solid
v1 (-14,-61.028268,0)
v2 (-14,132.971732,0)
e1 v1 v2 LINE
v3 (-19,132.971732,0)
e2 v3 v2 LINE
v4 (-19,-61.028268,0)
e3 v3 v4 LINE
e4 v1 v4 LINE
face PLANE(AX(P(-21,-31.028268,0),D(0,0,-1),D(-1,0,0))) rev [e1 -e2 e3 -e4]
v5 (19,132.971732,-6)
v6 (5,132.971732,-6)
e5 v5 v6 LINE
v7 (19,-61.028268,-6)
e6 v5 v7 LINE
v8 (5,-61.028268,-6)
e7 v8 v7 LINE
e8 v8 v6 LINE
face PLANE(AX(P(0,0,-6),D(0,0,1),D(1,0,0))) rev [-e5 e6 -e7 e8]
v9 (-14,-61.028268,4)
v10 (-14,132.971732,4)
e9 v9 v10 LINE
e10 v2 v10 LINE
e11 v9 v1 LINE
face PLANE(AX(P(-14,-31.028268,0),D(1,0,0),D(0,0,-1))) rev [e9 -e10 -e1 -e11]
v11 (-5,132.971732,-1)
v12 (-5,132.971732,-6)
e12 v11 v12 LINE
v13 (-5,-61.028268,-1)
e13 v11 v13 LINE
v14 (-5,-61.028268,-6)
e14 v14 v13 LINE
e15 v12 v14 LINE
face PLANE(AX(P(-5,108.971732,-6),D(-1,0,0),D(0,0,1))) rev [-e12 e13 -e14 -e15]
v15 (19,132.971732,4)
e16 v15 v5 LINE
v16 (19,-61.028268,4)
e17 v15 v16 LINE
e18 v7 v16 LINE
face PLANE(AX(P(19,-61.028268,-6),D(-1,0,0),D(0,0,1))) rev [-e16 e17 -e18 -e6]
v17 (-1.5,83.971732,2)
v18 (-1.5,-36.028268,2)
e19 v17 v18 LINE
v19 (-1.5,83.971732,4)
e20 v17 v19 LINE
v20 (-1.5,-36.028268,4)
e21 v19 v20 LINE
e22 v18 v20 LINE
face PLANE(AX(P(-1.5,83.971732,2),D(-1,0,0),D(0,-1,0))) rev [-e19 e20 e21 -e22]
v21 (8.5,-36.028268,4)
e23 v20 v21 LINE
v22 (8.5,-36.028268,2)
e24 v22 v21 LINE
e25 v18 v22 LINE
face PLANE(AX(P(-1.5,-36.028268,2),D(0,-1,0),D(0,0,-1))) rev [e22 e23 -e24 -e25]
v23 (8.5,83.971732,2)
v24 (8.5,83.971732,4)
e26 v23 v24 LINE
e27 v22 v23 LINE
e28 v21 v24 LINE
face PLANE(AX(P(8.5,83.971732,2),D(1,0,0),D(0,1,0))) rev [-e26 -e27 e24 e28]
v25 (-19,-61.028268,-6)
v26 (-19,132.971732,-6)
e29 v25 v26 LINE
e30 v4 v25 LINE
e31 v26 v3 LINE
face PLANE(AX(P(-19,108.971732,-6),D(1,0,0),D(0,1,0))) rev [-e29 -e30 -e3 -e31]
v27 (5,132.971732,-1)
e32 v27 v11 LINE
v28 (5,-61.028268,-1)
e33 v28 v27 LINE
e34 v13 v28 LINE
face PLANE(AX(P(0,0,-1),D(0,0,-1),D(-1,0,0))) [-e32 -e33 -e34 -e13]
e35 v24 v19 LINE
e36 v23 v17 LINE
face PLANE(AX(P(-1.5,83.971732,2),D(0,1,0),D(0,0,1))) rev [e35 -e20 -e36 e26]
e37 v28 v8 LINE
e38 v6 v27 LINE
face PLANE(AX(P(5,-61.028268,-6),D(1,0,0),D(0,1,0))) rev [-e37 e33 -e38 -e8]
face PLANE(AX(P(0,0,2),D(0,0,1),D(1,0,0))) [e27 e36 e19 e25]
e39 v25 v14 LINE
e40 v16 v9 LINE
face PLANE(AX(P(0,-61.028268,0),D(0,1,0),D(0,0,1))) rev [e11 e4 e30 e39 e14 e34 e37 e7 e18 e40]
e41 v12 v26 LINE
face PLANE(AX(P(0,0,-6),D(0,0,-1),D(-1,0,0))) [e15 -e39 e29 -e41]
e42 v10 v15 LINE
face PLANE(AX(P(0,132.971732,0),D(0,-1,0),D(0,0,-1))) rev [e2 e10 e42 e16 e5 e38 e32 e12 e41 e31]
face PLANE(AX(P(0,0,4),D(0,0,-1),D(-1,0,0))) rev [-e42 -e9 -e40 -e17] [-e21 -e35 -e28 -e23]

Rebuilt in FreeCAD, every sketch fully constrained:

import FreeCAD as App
import Part
import Sketcher


def add_polygon(sketch, points):
    """Adds a closed chain of lines whose ends are joined by coincident constraints."""
    first, n = sketch.GeometryCount, len(points)
    for a, b in zip(points, points[1:] + points[:1]):
        sketch.addGeometry(Part.LineSegment(App.Vector(*a, 0), App.Vector(*b, 0)), False)
    for i in range(n):
        sketch.addConstraint(Sketcher.Constraint("Coincident", first + i, 2, first + (i + 1) % n, 1))

doc = App.newDocument("Part")
body = doc.addObject("PartDesign::Body", "Body")

# Sketch on XY plane
sketch1 = body.newObject("Sketcher::SketchObject", "Sketch")
sketch1.AttachmentSupport = (doc.getObject("XY_Plane"), [""])
sketch1.MapMode = "FlatFace"
add_polygon(sketch1, [(-14, 88.971732), (-14, -11.028268), (0, -11.028268), (0, 88.971732)])  # lines 0-3
sketch1.addConstraint([
    Sketcher.Constraint("Vertical", 0),
    Sketcher.Constraint("Horizontal", 1),
    Sketcher.Constraint("Vertical", 2),
    Sketcher.Constraint("Horizontal", 3),
    Sketcher.Constraint("PointOnObject", 1, 2, -2),
    Sketcher.Constraint("DistanceX", 1, 1, 1, 2, 14.0),
    Sketcher.Constraint("DistanceY", 0, 2, 0, 1, 100.0),
    Sketcher.Constraint("DistanceY", 0, 2, -1, 1, 11.028268),
])
pad1 = body.newObject("PartDesign::Pad", "Pad")
pad1.Profile = sketch1
pad1.Length = 2

# Sketch on XY plane
sketch2 = body.newObject("Sketcher::SketchObject", "Sketch001")
sketch2.AttachmentSupport = (doc.getObject("XY_Plane"), [""])
sketch2.MapMode = "FlatFace"
sketch2.AttachmentOffset = App.Placement(App.Vector(0, 0, 2), App.Rotation())
add_polygon(sketch2, [(-14, 88.971732), (-14, -11.028268), (-12, -11.028268), (-12, 88.971732)])  # lines 0-3
add_polygon(sketch2, [(-2, 88.971732), (-2, -11.028268), (0, -11.028268), (0, 88.971732)])  # lines 4-7
sketch2.addConstraint([
    Sketcher.Constraint("Vertical", 0),
    Sketcher.Constraint("Horizontal", 1),
    Sketcher.Constraint("Vertical", 2),
    Sketcher.Constraint("Horizontal", 3),
    Sketcher.Constraint("Vertical", 4),
    Sketcher.Constraint("Horizontal", 5),
    Sketcher.Constraint("Vertical", 6),
    Sketcher.Constraint("Horizontal", 7),
    Sketcher.Constraint("PointOnObject", 5, 2, -2),
    Sketcher.Constraint("Horizontal", 1, 2, 4, 2),
    Sketcher.Constraint("Horizontal", 3, 2, 6, 2),
    Sketcher.Constraint("Equal", 3, 5),
    Sketcher.Constraint("DistanceX", 1, 1, 1, 2, 2.0),
    Sketcher.Constraint("DistanceY", 0, 2, 0, 1, 100.0),
    Sketcher.Constraint("DistanceX", 0, 2, -1, 1, 14.0),
    Sketcher.Constraint("DistanceY", 0, 2, -1, 1, 11.028268),
])
pad2 = body.newObject("PartDesign::Pad", "Pad001")
pad2.Profile = sketch2
pad2.Length = 4

# Sketch on YZ plane
sketch3 = body.newObject("Sketcher::SketchObject", "Sketch002")
sketch3.AttachmentSupport = (doc.getObject("YZ_Plane"), [""])
sketch3.MapMode = "FlatFace"
add_polygon(sketch3, [(88.971732, 2), (-11.028268, 2), (-11.028268, 0), (88.971732, 0)])  # lines 0-3
sketch3.addConstraint([
    Sketcher.Constraint("Horizontal", 0),
    Sketcher.Constraint("Vertical", 1),
    Sketcher.Constraint("Horizontal", 2),
    Sketcher.Constraint("Vertical", 3),
    Sketcher.Constraint("PointOnObject", 1, 2, -1),
    Sketcher.Constraint("DistanceX", 0, 2, 0, 1, 100.0),
    Sketcher.Constraint("DistanceY", 1, 2, 1, 1, 2.0),
    Sketcher.Constraint("DistanceX", 0, 2, -1, 1, 11.028268),
])
pad3 = body.newObject("PartDesign::Pad", "Pad002")
pad3.Profile = sketch3
pad3.Length = 2

# Sketch on YZ plane
sketch4 = body.newObject("Sketcher::SketchObject", "Sketch003")
sketch4.AttachmentSupport = (doc.getObject("YZ_Plane"), [""])
sketch4.MapMode = "FlatFace"
sketch4.AttachmentOffset = App.Placement(App.Vector(0, 0, -14), App.Rotation())
add_polygon(sketch4, [(88.971732, 0), (-11.028268, 0), (-11.028268, 2), (88.971732, 2)])  # lines 0-3
sketch4.addConstraint([
    Sketcher.Constraint("Horizontal", 0),
    Sketcher.Constraint("Vertical", 1),
    Sketcher.Constraint("Horizontal", 2),
    Sketcher.Constraint("Vertical", 3),
    Sketcher.Constraint("PointOnObject", 0, 2, -1),
    Sketcher.Constraint("DistanceX", 0, 2, 0, 1, 100.0),
    Sketcher.Constraint("DistanceY", 1, 1, 1, 2, 2.0),
    Sketcher.Constraint("DistanceX", 0, 2, -1, 1, 11.028268),
])
pad4 = body.newObject("PartDesign::Pad", "Pad003")
pad4.Profile = sketch4
pad4.Length = 2
pad4.Reversed = True

# Sketch on XY plane
sketch5 = body.newObject("Sketcher::SketchObject", "Sketch004")
sketch5.AttachmentSupport = (doc.getObject("XY_Plane"), [""])
sketch5.MapMode = "FlatFace"
add_polygon(sketch5, [(2, 88.971732), (2, -11.028268), (-16, -11.028268), (-16, 88.971732)])  # lines 0-3
sketch5.addConstraint([
    Sketcher.Constraint("Vertical", 0),
    Sketcher.Constraint("Horizontal", 1),
    Sketcher.Constraint("Vertical", 2),
    Sketcher.Constraint("Horizontal", 3),
    Sketcher.Constraint("DistanceX", 1, 2, 1, 1, 18.0),
    Sketcher.Constraint("DistanceY", 0, 2, 0, 1, 100.0),
    Sketcher.Constraint("DistanceX", -1, 1, 0, 2, 2.0),
    Sketcher.Constraint("DistanceY", 0, 2, -1, 1, 11.028268),
])
pad5 = body.newObject("PartDesign::Pad", "Pad004")
pad5.Profile = sketch5
pad5.Length = 1
pad5.Reversed = True

# Sketch on XY plane
sketch6 = body.newObject("Sketcher::SketchObject", "Sketch005")
sketch6.AttachmentSupport = (doc.getObject("XY_Plane"), [""])
sketch6.MapMode = "FlatFace"
sketch6.AttachmentOffset = App.Placement(App.Vector(0, 0, -1), App.Rotation())
add_polygon(sketch6, [(-5.5, 88.971732), (-5.5, -11.028268), (-8.5, -11.028268), (-8.5, 88.971732)])  # lines 0-3
sketch6.addConstraint([
    Sketcher.Constraint("Vertical", 0),
    Sketcher.Constraint("Horizontal", 1),
    Sketcher.Constraint("Vertical", 2),
    Sketcher.Constraint("Horizontal", 3),
    Sketcher.Constraint("DistanceX", 1, 2, 1, 1, 3.0),
    Sketcher.Constraint("DistanceY", 0, 2, 0, 1, 100.0),
    Sketcher.Constraint("DistanceX", 0, 2, -1, 1, 5.5),
    Sketcher.Constraint("DistanceY", 0, 2, -1, 1, 11.028268),
])
pocket1 = body.newObject("PartDesign::Pocket", "Pocket")
pocket1.Profile = sketch6
pocket1.Length = 1
pocket1.Reversed = True

# Sketch on XZ plane
sketch7 = body.newObject("Sketcher::SketchObject", "Sketch006")
sketch7.AttachmentSupport = (doc.getObject("XZ_Plane"), [""])
sketch7.MapMode = "FlatFace"
sketch7.AttachmentOffset = App.Placement(App.Vector(0, 0, -88.971732), App.Rotation())
add_polygon(sketch7, [(2, -1), (-5.5, -1), (-5.5, 0), (-8.5, 0), (-8.5, -1), (-16, -1), (-16, 2), (-14, 2), (-14, 6), (-12, 6), (-12, 2), (-2, 2), (-2, 6), (0, 6), (0, 2), (2, 2)])  # lines 0-15
sketch7.addConstraint([
    Sketcher.Constraint("Horizontal", 0),
    Sketcher.Constraint("Vertical", 1),
    Sketcher.Constraint("Horizontal", 2),
    Sketcher.Constraint("Vertical", 3),
    Sketcher.Constraint("Horizontal", 4),
    Sketcher.Constraint("Vertical", 5),
    Sketcher.Constraint("Horizontal", 6),
    Sketcher.Constraint("Vertical", 7),
    Sketcher.Constraint("Horizontal", 8),
    Sketcher.Constraint("Vertical", 9),
    Sketcher.Constraint("Horizontal", 10),
    Sketcher.Constraint("Vertical", 11),
    Sketcher.Constraint("Horizontal", 12),
    Sketcher.Constraint("Vertical", 13),
    Sketcher.Constraint("Horizontal", 14),
    Sketcher.Constraint("Vertical", 15),
    Sketcher.Constraint("Symmetric", 10, 2, 14, 2, -2),
    Sketcher.Constraint("PointOnObject", 1, 2, -1),
    Sketcher.Constraint("PointOnObject", 12, 2, -2),
    Sketcher.Constraint("Horizontal", 0, 2, 3, 2),
    Sketcher.Constraint("Horizontal", 6, 2, 9, 2),
    Sketcher.Constraint("Horizontal", 8, 2, 11, 2),
    Sketcher.Constraint("Equal", 0, 4),
    Sketcher.Constraint("Equal", 6, 8),
    Sketcher.Constraint("Equal", 8, 12),
    Sketcher.Constraint("Equal", 2, 5),
    Sketcher.Constraint("DistanceX", 2, 2, 2, 1, 3.0),
    Sketcher.Constraint("DistanceX", 6, 1, 6, 2, 2.0),
    Sketcher.Constraint("DistanceX", 10, 1, 10, 2, 10.0),
    Sketcher.Constraint("DistanceY", 1, 1, 1, 2, 1.0),
    Sketcher.Constraint("DistanceY", 7, 1, 7, 2, 4.0),
])
pad6 = body.newObject("PartDesign::Pad", "Pad005")
pad6.Profile = sketch7
pad6.Length = 50
pad6.Reversed = True

# Sketch on XZ plane
sketch8 = body.newObject("Sketcher::SketchObject", "Sketch007")
sketch8.AttachmentSupport = (doc.getObject("XZ_Plane"), [""])
sketch8.MapMode = "FlatFace"
sketch8.AttachmentOffset = App.Placement(App.Vector(0, 0, -138.971732), App.Rotation())
add_polygon(sketch8, [(-11.5, -1), (-11.5, 0), (-8.5, 0), (-8.5, -1)])  # lines 0-3
sketch8.addConstraint([
    Sketcher.Constraint("Vertical", 0),
    Sketcher.Constraint("Horizontal", 1),
    Sketcher.Constraint("Vertical", 2),
    Sketcher.Constraint("Horizontal", 3),
    Sketcher.Constraint("PointOnObject", 0, 2, -1),
    Sketcher.Constraint("DistanceX", 1, 1, 1, 2, 3.0),
    Sketcher.Constraint("DistanceY", 0, 1, 0, 2, 1.0),
    Sketcher.Constraint("DistanceX", 0, 2, -1, 1, 11.5),
])
pocket2 = body.newObject("PartDesign::Pocket", "Pocket001")
pocket2.Profile = sketch8
pocket2.Length = 150
pocket2.Reversed = True

# Sketch on XZ plane
sketch9 = body.newObject("Sketcher::SketchObject", "Sketch008")
sketch9.AttachmentSupport = (doc.getObject("XZ_Plane"), [""])
sketch9.MapMode = "FlatFace"
sketch9.AttachmentOffset = App.Placement(App.Vector(0, 0, -138.971732), App.Rotation())
add_polygon(sketch9, [(-8.5, -1), (-8.5, 0), (-5.5, 0), (-5.5, -1)])  # lines 0-3
sketch9.addConstraint([
    Sketcher.Constraint("Vertical", 0),
    Sketcher.Constraint("Horizontal", 1),
    Sketcher.Constraint("Vertical", 2),
    Sketcher.Constraint("Horizontal", 3),
    Sketcher.Constraint("PointOnObject", 0, 2, -1),
    Sketcher.Constraint("DistanceX", 1, 1, 1, 2, 3.0),
    Sketcher.Constraint("DistanceY", 0, 1, 0, 2, 1.0),
    Sketcher.Constraint("DistanceX", 0, 2, -1, 1, 8.5),
])
pad7 = body.newObject("PartDesign::Pad", "Pad006")
pad7.Profile = sketch9
pad7.Length = 150

# Sketch on XY plane
sketch10 = body.newObject("Sketcher::SketchObject", "Sketch009")
sketch10.AttachmentSupport = (doc.getObject("XY_Plane"), [""])
sketch10.MapMode = "FlatFace"
sketch10.AttachmentOffset = App.Placement(App.Vector(0, 0, 2), App.Rotation())
add_polygon(sketch10, [(-16, 38.971732), (-16, -11.028268), (-14, -11.028268), (-14, 38.971732)])  # lines 0-3
sketch10.addConstraint([
    Sketcher.Constraint("Vertical", 0),
    Sketcher.Constraint("Horizontal", 1),
    Sketcher.Constraint("Vertical", 2),
    Sketcher.Constraint("Horizontal", 3),
    Sketcher.Constraint("DistanceX", 1, 1, 1, 2, 2.0),
    Sketcher.Constraint("DistanceY", 0, 2, 0, 1, 50.0),
    Sketcher.Constraint("DistanceX", 0, 2, -1, 1, 16.0),
    Sketcher.Constraint("DistanceY", 0, 2, -1, 1, 11.028268),
])
pocket3 = body.newObject("PartDesign::Pocket", "Pocket002")
pocket3.Profile = sketch10
pocket3.Length = 50

# Sketch on XY plane
sketch11 = body.newObject("Sketcher::SketchObject", "Sketch010")
sketch11.AttachmentSupport = (doc.getObject("XY_Plane"), [""])
sketch11.MapMode = "FlatFace"
sketch11.AttachmentOffset = App.Placement(App.Vector(0, 0, 6), App.Rotation())
add_polygon(sketch11, [(-14, 18.971732), (-14, -11.028268), (2, -11.028268), (2, 18.971732)])  # lines 0-3
sketch11.addConstraint([
    Sketcher.Constraint("Vertical", 0),
    Sketcher.Constraint("Horizontal", 1),
    Sketcher.Constraint("Vertical", 2),
    Sketcher.Constraint("Horizontal", 3),
    Sketcher.Constraint("DistanceX", 1, 1, 1, 2, 16.0),
    Sketcher.Constraint("DistanceY", 0, 2, 0, 1, 30.0),
    Sketcher.Constraint("DistanceX", 0, 2, -1, 1, 14.0),
    Sketcher.Constraint("DistanceY", 0, 2, -1, 1, 11.028268),
])
pocket4 = body.newObject("PartDesign::Pocket", "Pocket003")
pocket4.Profile = sketch11
pocket4.Length = 50

# Sketch on XY plane
sketch12 = body.newObject("Sketcher::SketchObject", "Sketch011")
sketch12.AttachmentSupport = (doc.getObject("XY_Plane"), [""])
sketch12.MapMode = "FlatFace"
sketch12.AttachmentOffset = App.Placement(App.Vector(0, 0, 2), App.Rotation())
add_polygon(sketch12, [(-12, 138.971732), (-12, 136.971732), (-2, 136.971732), (-2, 138.971732)])  # lines 0-3
sketch12.addConstraint([
    Sketcher.Constraint("Vertical", 0),
    Sketcher.Constraint("Horizontal", 1),
    Sketcher.Constraint("Vertical", 2),
    Sketcher.Constraint("Horizontal", 3),
    Sketcher.Constraint("DistanceX", 1, 1, 1, 2, 10.0),
    Sketcher.Constraint("DistanceY", 0, 2, 0, 1, 2.0),
    Sketcher.Constraint("DistanceX", 0, 2, -1, 1, 12.0),
    Sketcher.Constraint("DistanceY", -1, 1, 0, 2, 136.971732),
])
pad8 = body.newObject("PartDesign::Pad", "Pad007")
pad8.Profile = sketch12
pad8.Length = 4

# Sketch on XY plane
sketch13 = body.newObject("Sketcher::SketchObject", "Sketch012")
sketch13.AttachmentSupport = (doc.getObject("XY_Plane"), [""])
sketch13.MapMode = "FlatFace"
sketch13.AttachmentOffset = App.Placement(App.Vector(0, 0, 2), App.Rotation())
add_polygon(sketch13, [(-12, 136.971732), (-12, 128.971732), (-2, 128.971732), (-2, 136.971732)])  # lines 0-3
sketch13.addConstraint([
    Sketcher.Constraint("Vertical", 0),
    Sketcher.Constraint("Horizontal", 1),
    Sketcher.Constraint("Vertical", 2),
    Sketcher.Constraint("Horizontal", 3),
    Sketcher.Constraint("DistanceX", 1, 1, 1, 2, 10.0),
    Sketcher.Constraint("DistanceY", 0, 2, 0, 1, 8.0),
    Sketcher.Constraint("DistanceX", 0, 2, -1, 1, 12.0),
    Sketcher.Constraint("DistanceY", -1, 1, 0, 2, 128.971732),
])
pad9 = body.newObject("PartDesign::Pad", "Pad008")
pad9.Profile = sketch13
pad9.Length = 4

# Sketch on XY plane
sketch14 = body.newObject("Sketcher::SketchObject", "Sketch013")
sketch14.AttachmentSupport = (doc.getObject("XY_Plane"), [""])
sketch14.MapMode = "FlatFace"
sketch14.AttachmentOffset = App.Placement(App.Vector(0, 0, 6), App.Rotation())
add_polygon(sketch14, [(-12, 136.971732), (-12, 128.971732), (-2, 128.971732), (-2, 136.971732)])  # lines 0-3
sketch14.addConstraint([
    Sketcher.Constraint("Vertical", 0),
    Sketcher.Constraint("Horizontal", 1),
    Sketcher.Constraint("Vertical", 2),
    Sketcher.Constraint("Horizontal", 3),
    Sketcher.Constraint("DistanceX", 1, 1, 1, 2, 10.0),
    Sketcher.Constraint("DistanceY", 0, 2, 0, 1, 8.0),
    Sketcher.Constraint("DistanceX", 0, 2, -1, 1, 12.0),
    Sketcher.Constraint("DistanceY", -1, 1, 0, 2, 128.971732),
])
pocket5 = body.newObject("PartDesign::Pocket", "Pocket004")
pocket5.Profile = sketch14
pocket5.Length = 4

# Sketch on XY plane
sketch15 = body.newObject("Sketcher::SketchObject", "Sketch014")
sketch15.AttachmentSupport = (doc.getObject("XY_Plane"), [""])
sketch15.MapMode = "FlatFace"
sketch15.AttachmentOffset = App.Placement(App.Vector(0, 0, 6), App.Rotation())
add_polygon(sketch15, [(-14, 138.971732), (-14, 18.971732), (2, 18.971732), (2, 138.971732)])  # lines 0-3
sketch15.addConstraint([
    Sketcher.Constraint("Vertical", 0),
    Sketcher.Constraint("Horizontal", 1),
    Sketcher.Constraint("Vertical", 2),
    Sketcher.Constraint("Horizontal", 3),
    Sketcher.Constraint("DistanceX", 1, 1, 1, 2, 16.0),
    Sketcher.Constraint("DistanceY", 0, 2, 0, 1, 120.0),
    Sketcher.Constraint("DistanceX", 0, 2, -1, 1, 14.0),
    Sketcher.Constraint("DistanceY", -1, 1, 0, 2, 18.971732),
])
pocket6 = body.newObject("PartDesign::Pocket", "Pocket005")
pocket6.Profile = sketch15
pocket6.Length = 2

# Sketch on XY plane
sketch16 = body.newObject("Sketcher::SketchObject", "Sketch015")
sketch16.AttachmentSupport = (doc.getObject("XY_Plane"), [""])
sketch16.MapMode = "FlatFace"
add_polygon(sketch16, [(-8.5, 138.971732), (-8.5, 98.971732), (-11.5, 98.971732), (-11.5, 138.971732)])  # lines 0-3
sketch16.addConstraint([
    Sketcher.Constraint("Vertical", 0),
    Sketcher.Constraint("Horizontal", 1),
    Sketcher.Constraint("Vertical", 2),
    Sketcher.Constraint("Horizontal", 3),
    Sketcher.Constraint("DistanceX", 1, 2, 1, 1, 3.0),
    Sketcher.Constraint("DistanceY", 0, 2, 0, 1, 40.0),
    Sketcher.Constraint("DistanceX", 0, 2, -1, 1, 8.5),
    Sketcher.Constraint("DistanceY", -1, 1, 0, 2, 98.971732),
])
pad10 = body.newObject("PartDesign::Pad", "Pad009")
pad10.Profile = sketch16
pad10.Length = 1
pad10.Reversed = True

# Sketch on XZ plane
sketch17 = body.newObject("Sketcher::SketchObject", "Sketch016")
sketch17.AttachmentSupport = (doc.getObject("XZ_Plane"), [""])
sketch17.MapMode = "FlatFace"
sketch17.AttachmentOffset = App.Placement(App.Vector(0, 0, -18.971732), App.Rotation())
add_polygon(sketch17, [(-12, 4), (-14, 4), (-14, -1), (-11.5, -1), (-11.5, 0), (-8.5, 0), (-8.5, -1), (2, -1), (2, 2), (0, 2), (0, 4), (-2, 4), (-2, 2), (-12, 2)])  # lines 0-13
sketch17.addConstraint([
    Sketcher.Constraint("Horizontal", 0),
    Sketcher.Constraint("Vertical", 1),
    Sketcher.Constraint("Horizontal", 2),
    Sketcher.Constraint("Vertical", 3),
    Sketcher.Constraint("Horizontal", 4),
    Sketcher.Constraint("Vertical", 5),
    Sketcher.Constraint("Horizontal", 6),
    Sketcher.Constraint("Vertical", 7),
    Sketcher.Constraint("Horizontal", 8),
    Sketcher.Constraint("Vertical", 9),
    Sketcher.Constraint("Horizontal", 10),
    Sketcher.Constraint("Vertical", 11),
    Sketcher.Constraint("Horizontal", 12),
    Sketcher.Constraint("Vertical", 13),
    Sketcher.Constraint("Symmetric", 7, 2, 11, 2, -2),
    Sketcher.Constraint("PointOnObject", 3, 2, -1),
    Sketcher.Constraint("PointOnObject", 8, 2, -2),
    Sketcher.Constraint("Horizontal", 2, 2, 5, 2),
    Sketcher.Constraint("Horizontal", 0, 2, 9, 2),
    Sketcher.Constraint("Equal", 0, 8),
    Sketcher.Constraint("Equal", 4, 7),
    Sketcher.Constraint("Equal", 10, 9),
    Sketcher.Constraint("DistanceX", 0, 2, 0, 1, 2.0),
    Sketcher.Constraint("DistanceX", 4, 1, 4, 2, 3.0),
    Sketcher.Constraint("DistanceX", 12, 2, 12, 1, 10.0),
    Sketcher.Constraint("DistanceY", 3, 1, 3, 2, 1.0),
    Sketcher.Constraint("DistanceX", 2, 1, 2, 2, 2.5),
])
pad11 = body.newObject("PartDesign::Pad", "Pad010")
pad11.Profile = sketch17
pad11.Length = 50

# Sketch on YZ plane
sketch18 = body.newObject("Sketcher::SketchObject", "Sketch017")
sketch18.AttachmentSupport = (doc.getObject("YZ_Plane"), [""])
sketch18.MapMode = "FlatFace"
add_polygon(sketch18, [(138.971732, 4), (-31.028268, 4), (-31.028268, 2), (138.971732, 2)])  # lines 0-3
sketch18.addConstraint([
    Sketcher.Constraint("Horizontal", 0),
    Sketcher.Constraint("Vertical", 1),
    Sketcher.Constraint("Horizontal", 2),
    Sketcher.Constraint("Vertical", 3),
    Sketcher.Constraint("DistanceX", 0, 2, 0, 1, 170.0),
    Sketcher.Constraint("DistanceY", 1, 2, 1, 1, 2.0),
    Sketcher.Constraint("DistanceY", -1, 1, 0, 2, 4.0),
    Sketcher.Constraint("DistanceX", 0, 2, -1, 1, 31.028268),
])
pad12 = body.newObject("PartDesign::Pad", "Pad011")
pad12.Profile = sketch18
pad12.Length = 2

# Sketch on YZ plane
sketch19 = body.newObject("Sketcher::SketchObject", "Sketch018")
sketch19.AttachmentSupport = (doc.getObject("YZ_Plane"), [""])
sketch19.MapMode = "FlatFace"
sketch19.AttachmentOffset = App.Placement(App.Vector(0, 0, 2), App.Rotation())
add_polygon(sketch19, [(138.971732, 4), (-31.028268, 4), (-31.028268, -1), (138.971732, -1)])  # lines 0-3
sketch19.addConstraint([
    Sketcher.Constraint("Horizontal", 0),
    Sketcher.Constraint("Vertical", 1),
    Sketcher.Constraint("Horizontal", 2),
    Sketcher.Constraint("Vertical", 3),
    Sketcher.Constraint("DistanceX", 0, 2, 0, 1, 170.0),
    Sketcher.Constraint("DistanceY", 1, 2, 1, 1, 5.0),
    Sketcher.Constraint("DistanceY", -1, 1, 0, 2, 4.0),
    Sketcher.Constraint("DistanceX", 0, 2, -1, 1, 31.028268),
])
pad13 = body.newObject("PartDesign::Pad", "Pad012")
pad13.Profile = sketch19
pad13.Length = 18

# Sketch on YZ plane
sketch20 = body.newObject("Sketcher::SketchObject", "Sketch019")
sketch20.AttachmentSupport = (doc.getObject("YZ_Plane"), [""])
sketch20.MapMode = "FlatFace"
sketch20.AttachmentOffset = App.Placement(App.Vector(0, 0, 20), App.Rotation())
add_polygon(sketch20, [(138.971732, 4), (-31.028268, 4), (-31.028268, -1), (138.971732, -1)])  # lines 0-3
sketch20.addConstraint([
    Sketcher.Constraint("Horizontal", 0),
    Sketcher.Constraint("Vertical", 1),
    Sketcher.Constraint("Horizontal", 2),
    Sketcher.Constraint("Vertical", 3),
    Sketcher.Constraint("DistanceX", 0, 2, 0, 1, 170.0),
    Sketcher.Constraint("DistanceY", 1, 2, 1, 1, 5.0),
    Sketcher.Constraint("DistanceY", -1, 1, 0, 2, 4.0),
    Sketcher.Constraint("DistanceX", 0, 2, -1, 1, 31.028268),
])
pad14 = body.newObject("PartDesign::Pad", "Pad013")
pad14.Profile = sketch20
pad14.Length = 40
pad14.Reversed = True

# Sketch on YZ plane
sketch21 = body.newObject("Sketcher::SketchObject", "Sketch020")
sketch21.AttachmentSupport = (doc.getObject("YZ_Plane"), [""])
sketch21.MapMode = "FlatFace"
sketch21.AttachmentOffset = App.Placement(App.Vector(0, 0, -20), App.Rotation())
add_polygon(sketch21, [(138.971732, 3), (-31.028268, 3), (-31.028268, 4), (138.971732, 4)])  # lines 0-3
sketch21.addConstraint([
    Sketcher.Constraint("Horizontal", 0),
    Sketcher.Constraint("Vertical", 1),
    Sketcher.Constraint("Horizontal", 2),
    Sketcher.Constraint("Vertical", 3),
    Sketcher.Constraint("DistanceX", 0, 2, 0, 1, 170.0),
    Sketcher.Constraint("DistanceY", 1, 1, 1, 2, 1.0),
    Sketcher.Constraint("DistanceY", -1, 1, 0, 2, 3.0),
    Sketcher.Constraint("DistanceX", 0, 2, -1, 1, 31.028268),
])
pad15 = body.newObject("PartDesign::Pad", "Pad014")
pad15.Profile = sketch21
pad15.Length = 1
pad15.Reversed = True

# Sketch on YZ plane
sketch22 = body.newObject("Sketcher::SketchObject", "Sketch021")
sketch22.AttachmentSupport = (doc.getObject("YZ_Plane"), [""])
sketch22.MapMode = "FlatFace"
sketch22.AttachmentOffset = App.Placement(App.Vector(0, 0, 20), App.Rotation())
add_polygon(sketch22, [(138.971732, 4), (-31.028268, 4), (-31.028268, 3), (138.971732, 3)])  # lines 0-3
sketch22.addConstraint([
    Sketcher.Constraint("Horizontal", 0),
    Sketcher.Constraint("Vertical", 1),
    Sketcher.Constraint("Horizontal", 2),
    Sketcher.Constraint("Vertical", 3),
    Sketcher.Constraint("DistanceX", 0, 2, 0, 1, 170.0),
    Sketcher.Constraint("DistanceY", 1, 2, 1, 1, 1.0),
    Sketcher.Constraint("DistanceY", -1, 1, 0, 2, 4.0),
    Sketcher.Constraint("DistanceX", 0, 2, -1, 1, 31.028268),
])
pad16 = body.newObject("PartDesign::Pad", "Pad015")
pad16.Profile = sketch22
pad16.Length = 1

# Sketch on XY plane
sketch23 = body.newObject("Sketcher::SketchObject", "Sketch022")
sketch23.AttachmentSupport = (doc.getObject("XY_Plane"), [""])
sketch23.MapMode = "FlatFace"
sketch23.AttachmentOffset = App.Placement(App.Vector(0, 0, -1), App.Rotation())
add_polygon(sketch23, [(5, 138.971732), (5, -31.028268), (-5, -31.028268), (-5, 138.971732)])  # lines 0-3
sketch23.addConstraint([
    Sketcher.Constraint("Vertical", 0),
    Sketcher.Constraint("Horizontal", 1),
    Sketcher.Constraint("Vertical", 2),
    Sketcher.Constraint("Horizontal", 3),
    Sketcher.Constraint("DistanceX", 1, 2, 1, 1, 10.0),
    Sketcher.Constraint("DistanceY", 0, 2, 0, 1, 170.0),
    Sketcher.Constraint("DistanceX", -1, 1, 0, 2, 5.0),
    Sketcher.Constraint("DistanceY", 0, 2, -1, 1, 31.028268),
])
pocket7 = body.newObject("PartDesign::Pocket", "Pocket006")
pocket7.Profile = sketch23
pocket7.Length = 2
pocket7.Reversed = True

# Sketch on XZ plane
sketch24 = body.newObject("Sketcher::SketchObject", "Sketch023")
sketch24.AttachmentSupport = (doc.getObject("XZ_Plane"), [""])
sketch24.MapMode = "FlatFace"
sketch24.AttachmentOffset = App.Placement(App.Vector(0, 0, -138.971732), App.Rotation())
add_polygon(sketch24, [(-20, -1), (-20, 3), (20, 3), (20, -1)])  # lines 0-3
sketch24.addConstraint([
    Sketcher.Constraint("Vertical", 0),
    Sketcher.Constraint("Horizontal", 1),
    Sketcher.Constraint("Vertical", 2),
    Sketcher.Constraint("Horizontal", 3),
    Sketcher.Constraint("DistanceX", 1, 1, 1, 2, 40.0),
    Sketcher.Constraint("DistanceY", 0, 1, 0, 2, 4.0),
    Sketcher.Constraint("DistanceX", 0, 2, -1, 1, 20.0),
    Sketcher.Constraint("DistanceY", -1, 1, 0, 2, 3.0),
])
pad17 = body.newObject("PartDesign::Pad", "Pad016")
pad17.Profile = sketch24
pad17.Length = 1

# Sketch on XY plane
sketch25 = body.newObject("Sketcher::SketchObject", "Sketch024")
sketch25.AttachmentSupport = (doc.getObject("XY_Plane"), [""])
sketch25.MapMode = "FlatFace"
sketch25.AttachmentOffset = App.Placement(App.Vector(0, 0, 1), App.Rotation())
add_polygon(sketch25, [(5, 8.971732), (5, -31.028268), (-5, -31.028268), (-5, 8.971732)])  # lines 0-3
sketch25.addConstraint([
    Sketcher.Constraint("Vertical", 0),
    Sketcher.Constraint("Horizontal", 1),
    Sketcher.Constraint("Vertical", 2),
    Sketcher.Constraint("Horizontal", 3),
    Sketcher.Constraint("DistanceX", 1, 2, 1, 1, 10.0),
    Sketcher.Constraint("DistanceY", 0, 2, 0, 1, 40.0),
    Sketcher.Constraint("DistanceX", -1, 1, 0, 2, 5.0),
    Sketcher.Constraint("DistanceY", 0, 2, -1, 1, 31.028268),
])
pad18 = body.newObject("PartDesign::Pad", "Pad017")
pad18.Profile = sketch25
pad18.Length = 2
pad18.Reversed = True

# Sketch on XY plane
sketch26 = body.newObject("Sketcher::SketchObject", "Sketch025")
sketch26.AttachmentSupport = (doc.getObject("XY_Plane"), [""])
sketch26.MapMode = "FlatFace"
sketch26.AttachmentOffset = App.Placement(App.Vector(0, 0, 4), App.Rotation())
add_polygon(sketch26, [(-19.5, 138.971732), (-19.5, -31.028268), (-16.5, -31.028268), (-16.5, 138.971732)])  # lines 0-3
sketch26.addConstraint([
    Sketcher.Constraint("Vertical", 0),
    Sketcher.Constraint("Horizontal", 1),
    Sketcher.Constraint("Vertical", 2),
    Sketcher.Constraint("Horizontal", 3),
    Sketcher.Constraint("DistanceX", 1, 1, 1, 2, 3.0),
    Sketcher.Constraint("DistanceY", 0, 2, 0, 1, 170.0),
    Sketcher.Constraint("DistanceX", 0, 2, -1, 1, 19.5),
    Sketcher.Constraint("DistanceY", 0, 2, -1, 1, 31.028268),
])
pocket8 = body.newObject("PartDesign::Pocket", "Pocket007")
pocket8.Profile = sketch26
pocket8.Length = 1

# Sketch on YZ plane
sketch27 = body.newObject("Sketcher::SketchObject", "Sketch026")
sketch27.AttachmentSupport = (doc.getObject("YZ_Plane"), [""])
sketch27.MapMode = "FlatFace"
sketch27.AttachmentOffset = App.Placement(App.Vector(0, 0, -20), App.Rotation())
add_polygon(sketch27, [(138.971732, -1), (-31.028268, -1), (-31.028268, 0), (138.971732, 0)])  # lines 0-3
sketch27.addConstraint([
    Sketcher.Constraint("Horizontal", 0),
    Sketcher.Constraint("Vertical", 1),
    Sketcher.Constraint("Horizontal", 2),
    Sketcher.Constraint("Vertical", 3),
    Sketcher.Constraint("PointOnObject", 1, 2, -1),
    Sketcher.Constraint("DistanceX", 0, 2, 0, 1, 170.0),
    Sketcher.Constraint("DistanceY", 1, 1, 1, 2, 1.0),
    Sketcher.Constraint("DistanceX", 0, 2, -1, 1, 31.028268),
])
pad19 = body.newObject("PartDesign::Pad", "Pad018")
pad19.Profile = sketch27
pad19.Length = 1
pad19.Reversed = True

# Sketch on XY plane
sketch28 = body.newObject("Sketcher::SketchObject", "Sketch027")
sketch28.AttachmentSupport = (doc.getObject("XY_Plane"), [""])
sketch28.MapMode = "FlatFace"
sketch28.AttachmentOffset = App.Placement(App.Vector(0, 0, 3), App.Rotation())
add_polygon(sketch28, [(-20, 138.971732), (-20, -31.028268), (-21, -31.028268), (-21, 138.971732)])  # lines 0-3
sketch28.addConstraint([
    Sketcher.Constraint("Vertical", 0),
    Sketcher.Constraint("Horizontal", 1),
    Sketcher.Constraint("Vertical", 2),
    Sketcher.Constraint("Horizontal", 3),
    Sketcher.Constraint("DistanceX", 1, 2, 1, 1, 1.0),
    Sketcher.Constraint("DistanceY", 0, 2, 0, 1, 170.0),
    Sketcher.Constraint("DistanceX", 0, 2, -1, 1, 20.0),
    Sketcher.Constraint("DistanceY", 0, 2, -1, 1, 31.028268),
])
pocket9 = body.newObject("PartDesign::Pocket", "Pocket008")
pocket9.Profile = sketch28
pocket9.Type = "ThroughAll"
pocket9.Reversed = True

# Sketch on XY plane
sketch29 = body.newObject("Sketcher::SketchObject", "Sketch028")
sketch29.AttachmentSupport = (doc.getObject("XY_Plane"), [""])
sketch29.MapMode = "FlatFace"
sketch29.AttachmentOffset = App.Placement(App.Vector(0, 0, 4), App.Rotation())
add_polygon(sketch29, [(-20, 138.971732), (-20, -31.028268), (-14, -31.028268), (-14, 138.971732)])  # lines 0-3
sketch29.addConstraint([
    Sketcher.Constraint("Vertical", 0),
    Sketcher.Constraint("Horizontal", 1),
    Sketcher.Constraint("Vertical", 2),
    Sketcher.Constraint("Horizontal", 3),
    Sketcher.Constraint("DistanceX", 1, 1, 1, 2, 6.0),
    Sketcher.Constraint("DistanceY", 0, 2, 0, 1, 170.0),
    Sketcher.Constraint("DistanceX", 0, 2, -1, 1, 20.0),
    Sketcher.Constraint("DistanceY", 0, 2, -1, 1, 31.028268),
])
pocket10 = body.newObject("PartDesign::Pocket", "Pocket009")
pocket10.Profile = sketch29
pocket10.Length = 4

# Sketch on XY plane
sketch30 = body.newObject("Sketcher::SketchObject", "Sketch029")
sketch30.AttachmentSupport = (doc.getObject("XY_Plane"), [""])
sketch30.MapMode = "FlatFace"
sketch30.AttachmentOffset = App.Placement(App.Vector(0, 0, 1), App.Rotation())
add_polygon(sketch30, [(5, 137.971732), (5, 8.971732), (-5, 8.971732), (-5, 137.971732)])  # lines 0-3
sketch30.addConstraint([
    Sketcher.Constraint("Vertical", 0),
    Sketcher.Constraint("Horizontal", 1),
    Sketcher.Constraint("Vertical", 2),
    Sketcher.Constraint("Horizontal", 3),
    Sketcher.Constraint("DistanceX", 1, 2, 1, 1, 10.0),
    Sketcher.Constraint("DistanceY", 0, 2, 0, 1, 129.0),
    Sketcher.Constraint("DistanceX", -1, 1, 0, 2, 5.0),
    Sketcher.Constraint("DistanceY", -1, 1, 0, 2, 8.971732),
])
pad20 = body.newObject("PartDesign::Pad", "Pad019")
pad20.Profile = sketch30
pad20.Length = 2
pad20.Reversed = True

# Sketch on XY plane
sketch31 = body.newObject("Sketcher::SketchObject", "Sketch030")
sketch31.AttachmentSupport = (doc.getObject("XY_Plane"), [""])
sketch31.MapMode = "FlatFace"
sketch31.AttachmentOffset = App.Placement(App.Vector(0, 0, 4), App.Rotation())
add_polygon(sketch31, [(-5, 98.971732), (-5, -21.028268), (5, -21.028268), (5, 98.971732)])  # lines 0-3
sketch31.addConstraint([
    Sketcher.Constraint("Vertical", 0),
    Sketcher.Constraint("Horizontal", 1),
    Sketcher.Constraint("Vertical", 2),
    Sketcher.Constraint("Horizontal", 3),
    Sketcher.Constraint("DistanceX", 1, 1, 1, 2, 10.0),
    Sketcher.Constraint("DistanceY", 0, 2, 0, 1, 120.0),
    Sketcher.Constraint("DistanceX", 0, 2, -1, 1, 5.0),
    Sketcher.Constraint("DistanceY", 0, 2, -1, 1, 21.028268),
])
pocket11 = body.newObject("PartDesign::Pocket", "Pocket010")
pocket11.Profile = sketch31
pocket11.Length = 2

# Sketch on XZ plane
sketch32 = body.newObject("Sketcher::SketchObject", "Sketch031")
sketch32.AttachmentSupport = (doc.getObject("XZ_Plane"), [""])
sketch32.MapMode = "FlatFace"
sketch32.AttachmentOffset = App.Placement(App.Vector(0, 0, 31.028268), App.Rotation())
add_polygon(sketch32, [(-21, 0), (-21, -1), (20, -1), (20, 3), (21, 3), (21, 4), (-14, 4), (-14, 0)])  # lines 0-7
sketch32.addConstraint([
    Sketcher.Constraint("Vertical", 0),
    Sketcher.Constraint("Horizontal", 1),
    Sketcher.Constraint("Vertical", 2),
    Sketcher.Constraint("Horizontal", 3),
    Sketcher.Constraint("Vertical", 4),
    Sketcher.Constraint("Horizontal", 5),
    Sketcher.Constraint("Vertical", 6),
    Sketcher.Constraint("Horizontal", 7),
    Sketcher.Constraint("PointOnObject", 6, 2, -1),
    Sketcher.Constraint("Equal", 3, 0),
    Sketcher.Constraint("Equal", 0, 4),
    Sketcher.Constraint("DistanceX", 1, 1, 1, 2, 41.0),
    Sketcher.Constraint("DistanceX", 3, 1, 3, 2, 1.0),
    Sketcher.Constraint("DistanceX", 5, 2, 5, 1, 35.0),
    Sketcher.Constraint("DistanceY", 2, 1, 2, 2, 4.0),
    Sketcher.Constraint("DistanceX", 0, 2, -1, 1, 21.0),
])
pad21 = body.newObject("PartDesign::Pad", "Pad020")
pad21.Profile = sketch32
pad21.Length = 30

# Sketch on XZ plane
sketch33 = body.newObject("Sketcher::SketchObject", "Sketch032")
sketch33.AttachmentSupport = (doc.getObject("XZ_Plane"), [""])
sketch33.MapMode = "FlatFace"
sketch33.AttachmentOffset = App.Placement(App.Vector(0, 0, -138.971732), App.Rotation())
add_polygon(sketch33, [(20, -1), (-21, -1), (-21, 0), (-14, 0), (-14, 4), (21, 4), (21, 3), (20, 3)])  # lines 0-7
sketch33.addConstraint([
    Sketcher.Constraint("Horizontal", 0),
    Sketcher.Constraint("Vertical", 1),
    Sketcher.Constraint("Horizontal", 2),
    Sketcher.Constraint("Vertical", 3),
    Sketcher.Constraint("Horizontal", 4),
    Sketcher.Constraint("Vertical", 5),
    Sketcher.Constraint("Horizontal", 6),
    Sketcher.Constraint("Vertical", 7),
    Sketcher.Constraint("PointOnObject", 1, 2, -1),
    Sketcher.Constraint("Equal", 6, 1),
    Sketcher.Constraint("Equal", 1, 5),
    Sketcher.Constraint("DistanceX", 0, 2, 0, 1, 41.0),
    Sketcher.Constraint("DistanceX", 2, 1, 2, 2, 7.0),
    Sketcher.Constraint("DistanceX", 4, 1, 4, 2, 35.0),
    Sketcher.Constraint("DistanceY", 3, 1, 3, 2, 4.0),
    Sketcher.Constraint("DistanceX", 0, 2, -1, 1, 21.0),
])
pocket12 = body.newObject("PartDesign::Pocket", "Pocket011")
pocket12.Profile = sketch33
pocket12.Length = 30
pocket12.Reversed = True

# Sketch on XY plane
sketch34 = body.newObject("Sketcher::SketchObject", "Sketch033")
sketch34.AttachmentSupport = (doc.getObject("XY_Plane"), [""])
sketch34.MapMode = "FlatFace"
sketch34.AttachmentOffset = App.Placement(App.Vector(0, 0, 4), App.Rotation())
add_polygon(sketch34, [(-5, 78.971732), (-5, -41.028268), (5, -41.028268), (5, 78.971732)])  # lines 0-3
sketch34.addConstraint([
    Sketcher.Constraint("Vertical", 0),
    Sketcher.Constraint("Horizontal", 1),
    Sketcher.Constraint("Vertical", 2),
    Sketcher.Constraint("Horizontal", 3),
    Sketcher.Constraint("DistanceX", 1, 1, 1, 2, 10.0),
    Sketcher.Constraint("DistanceY", 0, 2, 0, 1, 120.0),
    Sketcher.Constraint("DistanceX", 0, 2, -1, 1, 5.0),
    Sketcher.Constraint("DistanceY", 0, 2, -1, 1, 41.028268),
])
pocket13 = body.newObject("PartDesign::Pocket", "Pocket012")
pocket13.Profile = sketch34
pocket13.Length = 2

# Sketch on XY plane
sketch35 = body.newObject("Sketcher::SketchObject", "Sketch034")
sketch35.AttachmentSupport = (doc.getObject("XY_Plane"), [""])
sketch35.MapMode = "FlatFace"
sketch35.AttachmentOffset = App.Placement(App.Vector(0, 0, 4), App.Rotation())
add_polygon(sketch35, [(-5, 98.971732), (-5, 78.971732), (5, 78.971732), (5, 98.971732)])  # lines 0-3
sketch35.addConstraint([
    Sketcher.Constraint("Vertical", 0),
    Sketcher.Constraint("Horizontal", 1),
    Sketcher.Constraint("Vertical", 2),
    Sketcher.Constraint("Horizontal", 3),
    Sketcher.Constraint("DistanceX", 1, 1, 1, 2, 10.0),
    Sketcher.Constraint("DistanceY", 0, 2, 0, 1, 20.0),
    Sketcher.Constraint("DistanceX", 0, 2, -1, 1, 5.0),
    Sketcher.Constraint("DistanceY", -1, 1, 0, 2, 78.971732),
])
pad22 = body.newObject("PartDesign::Pad", "Pad021")
pad22.Profile = sketch35
pad22.Length = 2
pad22.Reversed = True

# Sketch on XY plane
sketch36 = body.newObject("Sketcher::SketchObject", "Sketch035")
sketch36.AttachmentSupport = (doc.getObject("XY_Plane"), [""])
sketch36.MapMode = "FlatFace"
sketch36.AttachmentOffset = App.Placement(App.Vector(0, 0, 4), App.Rotation())
add_polygon(sketch36, [(-5, -36.028268), (-5, -41.028268), (5, -41.028268), (5, -36.028268)])  # lines 0-3
sketch36.addConstraint([
    Sketcher.Constraint("Vertical", 0),
    Sketcher.Constraint("Horizontal", 1),
    Sketcher.Constraint("Vertical", 2),
    Sketcher.Constraint("Horizontal", 3),
    Sketcher.Constraint("DistanceX", 1, 1, 1, 2, 10.0),
    Sketcher.Constraint("DistanceY", 0, 2, 0, 1, 5.0),
    Sketcher.Constraint("DistanceX", 0, 2, -1, 1, 5.0),
    Sketcher.Constraint("DistanceY", 0, 2, -1, 1, 41.028268),
])
pad23 = body.newObject("PartDesign::Pad", "Pad022")
pad23.Profile = sketch36
pad23.Length = 2
pad23.Reversed = True

# Sketch on XY plane
sketch37 = body.newObject("Sketcher::SketchObject", "Sketch036")
sketch37.AttachmentSupport = (doc.getObject("XY_Plane"), [""])
sketch37.MapMode = "FlatFace"
sketch37.AttachmentOffset = App.Placement(App.Vector(0, 0, 4), App.Rotation())
add_polygon(sketch37, [(-5, 83.971732), (-5, 78.971732), (5, 78.971732), (5, 83.971732)])  # lines 0-3
sketch37.addConstraint([
    Sketcher.Constraint("Vertical", 0),
    Sketcher.Constraint("Horizontal", 1),
    Sketcher.Constraint("Vertical", 2),
    Sketcher.Constraint("Horizontal", 3),
    Sketcher.Constraint("DistanceX", 1, 1, 1, 2, 10.0),
    Sketcher.Constraint("DistanceY", 0, 2, 0, 1, 5.0),
    Sketcher.Constraint("DistanceX", 0, 2, -1, 1, 5.0),
    Sketcher.Constraint("DistanceY", -1, 1, 0, 2, 78.971732),
])
pocket14 = body.newObject("PartDesign::Pocket", "Pocket013")
pocket14.Profile = sketch37
pocket14.Length = 2

# Sketch on XY plane
sketch38 = body.newObject("Sketcher::SketchObject", "Sketch037")
sketch38.AttachmentSupport = (doc.getObject("XY_Plane"), [""])
sketch38.MapMode = "FlatFace"
sketch38.AttachmentOffset = App.Placement(App.Vector(0, 0, 4), App.Rotation())
add_polygon(sketch38, [(-5, 83.971732), (-5, -36.028268), (5, -36.028268), (5, 83.971732)])  # lines 0-3
sketch38.addConstraint([
    Sketcher.Constraint("Vertical", 0),
    Sketcher.Constraint("Horizontal", 1),
    Sketcher.Constraint("Vertical", 2),
    Sketcher.Constraint("Horizontal", 3),
    Sketcher.Constraint("DistanceX", 1, 1, 1, 2, 10.0),
    Sketcher.Constraint("DistanceY", 0, 2, 0, 1, 120.0),
    Sketcher.Constraint("DistanceX", 0, 2, -1, 1, 5.0),
    Sketcher.Constraint("DistanceY", 0, 2, -1, 1, 36.028268),
])
pad24 = body.newObject("PartDesign::Pad", "Pad023")
pad24.Profile = sketch38
pad24.Length = 2
pad24.Reversed = True

# Sketch on XY plane
sketch39 = body.newObject("Sketcher::SketchObject", "Sketch038")
sketch39.AttachmentSupport = (doc.getObject("XY_Plane"), [""])
sketch39.MapMode = "FlatFace"
sketch39.AttachmentOffset = App.Placement(App.Vector(0, 0, 4), App.Rotation())
add_polygon(sketch39, [(-1.5, 83.971732), (-1.5, -36.028268), (8.5, -36.028268), (8.5, 83.971732)])  # lines 0-3
sketch39.addConstraint([
    Sketcher.Constraint("Vertical", 0),
    Sketcher.Constraint("Horizontal", 1),
    Sketcher.Constraint("Vertical", 2),
    Sketcher.Constraint("Horizontal", 3),
    Sketcher.Constraint("DistanceX", 1, 1, 1, 2, 10.0),
    Sketcher.Constraint("DistanceY", 0, 2, 0, 1, 120.0),
    Sketcher.Constraint("DistanceX", 0, 2, -1, 1, 1.5),
    Sketcher.Constraint("DistanceY", 0, 2, -1, 1, 36.028268),
])
pocket15 = body.newObject("PartDesign::Pocket", "Pocket014")
pocket15.Profile = sketch39
pocket15.Length = 2

# Sketch on XY plane
sketch40 = body.newObject("Sketcher::SketchObject", "Sketch039")
sketch40.AttachmentSupport = (doc.getObject("XY_Plane"), [""])
sketch40.MapMode = "FlatFace"
sketch40.AttachmentOffset = App.Placement(App.Vector(0, 0, -1), App.Rotation())
add_polygon(sketch40, [(20, 108.971732), (20, -61.028268), (5, -61.028268), (5, 108.971732)])  # lines 0-3
add_polygon(sketch40, [(-5, 108.971732), (-5, -61.028268), (-20, -61.028268), (-20, 108.971732)])  # lines 4-7
sketch40.addConstraint([
    Sketcher.Constraint("Vertical", 0),
    Sketcher.Constraint("Horizontal", 1),
    Sketcher.Constraint("Vertical", 2),
    Sketcher.Constraint("Horizontal", 3),
    Sketcher.Constraint("Vertical", 4),
    Sketcher.Constraint("Horizontal", 5),
    Sketcher.Constraint("Vertical", 6),
    Sketcher.Constraint("Horizontal", 7),
    Sketcher.Constraint("Symmetric", 1, 2, 4, 2, -2),
    Sketcher.Constraint("Symmetric", 3, 2, 6, 2, -2),
    Sketcher.Constraint("DistanceX", 1, 2, 1, 1, 15.0),
    Sketcher.Constraint("DistanceY", 0, 2, 0, 1, 170.0),
    Sketcher.Constraint("DistanceX", -1, 1, 0, 2, 20.0),
    Sketcher.Constraint("DistanceY", 0, 2, -1, 1, 61.028268),
])
pad25 = body.newObject("PartDesign::Pad", "Pad024")
pad25.Profile = sketch40
pad25.Length = 5
pad25.Reversed = True

# Sketch on XY plane
sketch41 = body.newObject("Sketcher::SketchObject", "Sketch040")
sketch41.AttachmentSupport = (doc.getObject("XY_Plane"), [""])
sketch41.MapMode = "FlatFace"
sketch41.AttachmentOffset = App.Placement(App.Vector(0, 0, -1), App.Rotation())
add_polygon(sketch41, [(-20, 108.971732), (-20, -61.028268), (-21, -61.028268), (-21, 108.971732)])  # lines 0-3
sketch41.addConstraint([
    Sketcher.Constraint("Vertical", 0),
    Sketcher.Constraint("Horizontal", 1),
    Sketcher.Constraint("Vertical", 2),
    Sketcher.Constraint("Horizontal", 3),
    Sketcher.Constraint("DistanceX", 1, 2, 1, 1, 1.0),
    Sketcher.Constraint("DistanceY", 0, 2, 0, 1, 170.0),
    Sketcher.Constraint("DistanceX", 0, 2, -1, 1, 20.0),
    Sketcher.Constraint("DistanceY", 0, 2, -1, 1, 61.028268),
])
pocket16 = body.newObject("PartDesign::Pocket", "Pocket015")
pocket16.Profile = sketch41
pocket16.Length = 1
pocket16.Reversed = True

# Sketch on XY plane
sketch42 = body.newObject("Sketcher::SketchObject", "Sketch041")
sketch42.AttachmentSupport = (doc.getObject("XY_Plane"), [""])
sketch42.MapMode = "FlatFace"
sketch42.AttachmentOffset = App.Placement(App.Vector(0, 0, 3), App.Rotation())
add_polygon(sketch42, [(21, 108.971732), (21, -61.028268), (20, -61.028268), (20, 108.971732)])  # lines 0-3
sketch42.addConstraint([
    Sketcher.Constraint("Vertical", 0),
    Sketcher.Constraint("Horizontal", 1),
    Sketcher.Constraint("Vertical", 2),
    Sketcher.Constraint("Horizontal", 3),
    Sketcher.Constraint("DistanceX", 1, 2, 1, 1, 1.0),
    Sketcher.Constraint("DistanceY", 0, 2, 0, 1, 170.0),
    Sketcher.Constraint("DistanceX", -1, 1, 0, 2, 21.0),
    Sketcher.Constraint("DistanceY", 0, 2, -1, 1, 61.028268),
])
pocket17 = body.newObject("PartDesign::Pocket", "Pocket016")
pocket17.Profile = sketch42
pocket17.Length = 10
pocket17.Reversed = True

# Sketch on XY plane
sketch43 = body.newObject("Sketcher::SketchObject", "Sketch042")
sketch43.AttachmentSupport = (doc.getObject("XY_Plane"), [""])
sketch43.MapMode = "FlatFace"
sketch43.AttachmentOffset = App.Placement(App.Vector(0, 0, 4), App.Rotation())
add_polygon(sketch43, [(19, 108.971732), (19, -61.028268), (20, -61.028268), (20, 108.971732)])  # lines 0-3
add_polygon(sketch43, [(-20, 108.971732), (-20, -61.028268), (-19, -61.028268), (-19, 108.971732)])  # lines 4-7
sketch43.addConstraint([
    Sketcher.Constraint("Vertical", 0),
    Sketcher.Constraint("Horizontal", 1),
    Sketcher.Constraint("Vertical", 2),
    Sketcher.Constraint("Horizontal", 3),
    Sketcher.Constraint("Vertical", 4),
    Sketcher.Constraint("Horizontal", 5),
    Sketcher.Constraint("Vertical", 6),
    Sketcher.Constraint("Horizontal", 7),
    Sketcher.Constraint("Symmetric", 1, 2, 4, 2, -2),
    Sketcher.Constraint("Symmetric", 3, 2, 6, 2, -2),
    Sketcher.Constraint("DistanceX", 1, 1, 1, 2, 1.0),
    Sketcher.Constraint("DistanceY", 0, 2, 0, 1, 170.0),
    Sketcher.Constraint("DistanceX", -1, 1, 0, 2, 19.0),
    Sketcher.Constraint("DistanceY", 0, 2, -1, 1, 61.028268),
])
pocket18 = body.newObject("PartDesign::Pocket", "Pocket017")
pocket18.Profile = sketch43
pocket18.Type = "ThroughAll"

# Sketch on XZ plane
sketch44 = body.newObject("Sketcher::SketchObject", "Sketch043")
sketch44.AttachmentSupport = (doc.getObject("XZ_Plane"), [""])
sketch44.MapMode = "FlatFace"
sketch44.AttachmentOffset = App.Placement(App.Vector(0, 0, 61.028268), App.Rotation())
add_polygon(sketch44, [(-19, -6), (-5, -6), (-5, -1), (5, -1), (5, -6), (19, -6), (19, 4), (-14, 4), (-14, 0), (-19, 0)])  # lines 0-9
sketch44.addConstraint([
    Sketcher.Constraint("Horizontal", 0),
    Sketcher.Constraint("Vertical", 1),
    Sketcher.Constraint("Horizontal", 2),
    Sketcher.Constraint("Vertical", 3),
    Sketcher.Constraint("Horizontal", 4),
    Sketcher.Constraint("Vertical", 5),
    Sketcher.Constraint("Horizontal", 6),
    Sketcher.Constraint("Vertical", 7),
    Sketcher.Constraint("Horizontal", 8),
    Sketcher.Constraint("Vertical", 9),
    Sketcher.Constraint("Symmetric", 0, 2, 3, 2, -2),
    Sketcher.Constraint("PointOnObject", 7, 2, -1),
    Sketcher.Constraint("Equal", 0, 4),
    Sketcher.Constraint("Equal", 8, 1),
    Sketcher.Constraint("Equal", 2, 5),
    Sketcher.Constraint("DistanceX", 0, 1, 0, 2, 14.0),
    Sketcher.Constraint("DistanceX", 2, 1, 2, 2, 10.0),
    Sketcher.Constraint("DistanceX", 6, 2, 6, 1, 33.0),
    Sketcher.Constraint("DistanceY", 7, 2, 7, 1, 4.0),
])
pad26 = body.newObject("PartDesign::Pad", "Pad025")
pad26.Profile = sketch44
pad26.Length = 14

# Sketch on XZ plane
sketch45 = body.newObject("Sketcher::SketchObject", "Sketch044")
sketch45.AttachmentSupport = (doc.getObject("XZ_Plane"), [""])
sketch45.MapMode = "FlatFace"
sketch45.AttachmentOffset = App.Placement(App.Vector(0, 0, 75.028268), App.Rotation())
add_polygon(sketch45, [(-19, 0), (-19, -6), (-5, -6), (-5, -1), (5, -1), (5, -6), (19, -6), (19, 4), (-14, 4), (-14, 0)])  # lines 0-9
sketch45.addConstraint([
    Sketcher.Constraint("Vertical", 0),
    Sketcher.Constraint("Horizontal", 1),
    Sketcher.Constraint("Vertical", 2),
    Sketcher.Constraint("Horizontal", 3),
    Sketcher.Constraint("Vertical", 4),
    Sketcher.Constraint("Horizontal", 5),
    Sketcher.Constraint("Vertical", 6),
    Sketcher.Constraint("Horizontal", 7),
    Sketcher.Constraint("Vertical", 8),
    Sketcher.Constraint("Horizontal", 9),
    Sketcher.Constraint("Symmetric", 1, 2, 4, 2, -2),
    Sketcher.Constraint("PointOnObject", 8, 2, -1),
    Sketcher.Constraint("Equal", 1, 5),
    Sketcher.Constraint("Equal", 9, 2),
    Sketcher.Constraint("Equal", 3, 6),
    Sketcher.Constraint("DistanceX", 1, 1, 1, 2, 14.0),
    Sketcher.Constraint("DistanceX", 3, 1, 3, 2, 10.0),
    Sketcher.Constraint("DistanceX", 7, 2, 7, 1, 33.0),
    Sketcher.Constraint("DistanceY", 0, 2, 0, 1, 6.0),
])
pocket19 = body.newObject("PartDesign::Pocket", "Pocket018")
pocket19.Profile = sketch45
pocket19.Length = 14

# Sketch on XZ plane
sketch46 = body.newObject("Sketcher::SketchObject", "Sketch045")
sketch46.AttachmentSupport = (doc.getObject("XZ_Plane"), [""])
sketch46.MapMode = "FlatFace"
sketch46.AttachmentOffset = App.Placement(App.Vector(0, 0, -108.971732), App.Rotation())
add_polygon(sketch46, [(-5, -6), (-19, -6), (-19, 0), (-14, 0), (-14, 4), (19, 4), (19, -6), (5, -6), (5, -1), (-5, -1)])  # lines 0-9
sketch46.addConstraint([
    Sketcher.Constraint("Horizontal", 0),
    Sketcher.Constraint("Vertical", 1),
    Sketcher.Constraint("Horizontal", 2),
    Sketcher.Constraint("Vertical", 3),
    Sketcher.Constraint("Horizontal", 4),
    Sketcher.Constraint("Vertical", 5),
    Sketcher.Constraint("Horizontal", 6),
    Sketcher.Constraint("Vertical", 7),
    Sketcher.Constraint("Horizontal", 8),
    Sketcher.Constraint("Vertical", 9),
    Sketcher.Constraint("Symmetric", 0, 2, 5, 2, -2),
    Sketcher.Constraint("PointOnObject", 1, 2, -1),
    Sketcher.Constraint("Equal", 0, 6),
    Sketcher.Constraint("Equal", 8, 5),
    Sketcher.Constraint("Equal", 2, 7),
    Sketcher.Constraint("DistanceX", 0, 2, 0, 1, 14.0),
    Sketcher.Constraint("DistanceX", 2, 1, 2, 2, 5.0),
    Sketcher.Constraint("DistanceX", 4, 1, 4, 2, 33.0),
    Sketcher.Constraint("DistanceY", 1, 1, 1, 2, 6.0),
])
pad27 = body.newObject("PartDesign::Pad", "Pad026")
pad27.Profile = sketch46
pad27.Length = 14
pad27.Reversed = True

# Sketch on XZ plane
sketch47 = body.newObject("Sketcher::SketchObject", "Sketch046")
sketch47.AttachmentSupport = (doc.getObject("XZ_Plane"), [""])
sketch47.MapMode = "FlatFace"
sketch47.AttachmentOffset = App.Placement(App.Vector(0, 0, -122.971732), App.Rotation())
add_polygon(sketch47, [(-5, -6), (-19, -6), (-19, 0), (-14, 0), (-14, 4), (19, 4), (19, -6), (5, -6), (5, -1), (-5, -1)])  # lines 0-9
sketch47.addConstraint([
    Sketcher.Constraint("Horizontal", 0),
    Sketcher.Constraint("Vertical", 1),
    Sketcher.Constraint("Horizontal", 2),
    Sketcher.Constraint("Vertical", 3),
    Sketcher.Constraint("Horizontal", 4),
    Sketcher.Constraint("Vertical", 5),
    Sketcher.Constraint("Horizontal", 6),
    Sketcher.Constraint("Vertical", 7),
    Sketcher.Constraint("Horizontal", 8),
    Sketcher.Constraint("Vertical", 9),
    Sketcher.Constraint("Symmetric", 0, 2, 5, 2, -2),
    Sketcher.Constraint("PointOnObject", 1, 2, -1),
    Sketcher.Constraint("Equal", 0, 6),
    Sketcher.Constraint("Equal", 8, 5),
    Sketcher.Constraint("Equal", 2, 7),
    Sketcher.Constraint("DistanceX", 0, 2, 0, 1, 14.0),
    Sketcher.Constraint("DistanceX", 2, 1, 2, 2, 5.0),
    Sketcher.Constraint("DistanceX", 4, 1, 4, 2, 33.0),
    Sketcher.Constraint("DistanceY", 1, 1, 1, 2, 6.0),
])
pad28 = body.newObject("PartDesign::Pad", "Pad027")
pad28.Profile = sketch47
pad28.Length = 10
pad28.Reversed = True

doc.recompute()
